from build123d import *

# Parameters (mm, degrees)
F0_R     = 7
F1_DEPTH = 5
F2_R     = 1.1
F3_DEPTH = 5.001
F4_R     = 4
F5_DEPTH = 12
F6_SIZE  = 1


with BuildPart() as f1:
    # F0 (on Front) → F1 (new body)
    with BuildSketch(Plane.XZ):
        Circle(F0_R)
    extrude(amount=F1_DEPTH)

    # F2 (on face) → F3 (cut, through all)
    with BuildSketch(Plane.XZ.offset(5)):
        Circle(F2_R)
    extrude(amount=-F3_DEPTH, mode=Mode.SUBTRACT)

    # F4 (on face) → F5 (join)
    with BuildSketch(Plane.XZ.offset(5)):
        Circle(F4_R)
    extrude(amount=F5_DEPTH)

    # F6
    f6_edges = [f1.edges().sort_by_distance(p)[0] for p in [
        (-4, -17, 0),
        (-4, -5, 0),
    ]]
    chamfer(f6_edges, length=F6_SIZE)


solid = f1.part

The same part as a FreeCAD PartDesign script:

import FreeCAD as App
import Part
import Sketcher

V = App.Vector


def edges_at(feature, points):
    """Names of the edges that pass closest to the given points."""
    edges = feature.Shape.Edges
    near = lambda p: min(range(len(edges)), key=lambda i: edges[i].distToShape(Part.Vertex(*p))[0])
    return sorted({f"Edge{near(p) + 1}" for p in points})

doc = App.newDocument("Part")
body = doc.addObject("PartDesign::Body", "Body")

# Sketch on XZ plane
sketch1 = body.newObject("Sketcher::SketchObject", "Sketch")
sketch1.AttachmentSupport = (doc.getObject("XZ_Plane"), [""])
sketch1.MapMode = "FlatFace"
sketch1.addGeometry(Part.Circle(V(0, 0, 0), V(0, 0, 1), 7), False)
sketch1.addConstraint([
    Sketcher.Constraint("Coincident", 0, 3, -1, 1),
    Sketcher.Constraint("Diameter", 0, 14.0),
])
pad1 = body.newObject("PartDesign::Pad", "Pad")
pad1.Profile = sketch1
pad1.Length = 5

# Sketch on XZ plane
sketch2 = body.newObject("Sketcher::SketchObject", "Sketch001")
sketch2.AttachmentSupport = (doc.getObject("XZ_Plane"), [""])
sketch2.MapMode = "FlatFace"
sketch2.AttachmentOffset = App.Placement(V(0, 0, 5), App.Rotation())
sketch2.addGeometry(Part.Circle(V(0, 0, 0), V(0, 0, 1), 1.1), False)
sketch2.addConstraint([
    Sketcher.Constraint("Coincident", 0, 3, -1, 1),
    Sketcher.Constraint("Diameter", 0, 2.2),
])
pocket1 = body.newObject("PartDesign::Pocket", "Pocket")
pocket1.Profile = sketch2
pocket1.Type = "ThroughAll"

# Sketch on XZ plane
sketch3 = body.newObject("Sketcher::SketchObject", "Sketch002")
sketch3.AttachmentSupport = (doc.getObject("XZ_Plane"), [""])
sketch3.MapMode = "FlatFace"
sketch3.AttachmentOffset = App.Placement(V(0, 0, 5), App.Rotation())
sketch3.addGeometry(Part.Circle(V(0, 0, 0), V(0, 0, 1), 4), False)
sketch3.addConstraint([
    Sketcher.Constraint("Coincident", 0, 3, -1, 1),
    Sketcher.Constraint("Diameter", 0, 8.0),
])
pad2 = body.newObject("PartDesign::Pad", "Pad001")
pad2.Profile = sketch3
pad2.Length = 12
doc.recompute()

chamfer = body.newObject("PartDesign::Chamfer", "Chamfer")
chamfer.Base = (pad2, edges_at(pad2, [(-4, -17, 0), (-4, -5, 0)]))
chamfer.Size = 1

doc.recompute()
